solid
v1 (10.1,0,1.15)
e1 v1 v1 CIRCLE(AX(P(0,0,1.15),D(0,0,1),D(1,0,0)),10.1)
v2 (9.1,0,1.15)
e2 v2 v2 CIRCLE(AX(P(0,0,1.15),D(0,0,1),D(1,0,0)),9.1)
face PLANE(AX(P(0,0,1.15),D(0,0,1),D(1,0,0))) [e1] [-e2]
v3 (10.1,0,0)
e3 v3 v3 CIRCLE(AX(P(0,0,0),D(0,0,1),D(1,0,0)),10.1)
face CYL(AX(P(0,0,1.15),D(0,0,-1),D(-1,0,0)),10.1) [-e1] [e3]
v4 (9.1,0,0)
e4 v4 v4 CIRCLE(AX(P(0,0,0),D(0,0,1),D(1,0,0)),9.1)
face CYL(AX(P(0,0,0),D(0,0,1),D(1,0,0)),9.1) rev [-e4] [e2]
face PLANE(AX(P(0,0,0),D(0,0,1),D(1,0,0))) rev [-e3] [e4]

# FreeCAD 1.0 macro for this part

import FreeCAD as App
import Part
import Sketcher
from FreeCAD import Vector
Q = App.Units.Quantity

doc = App.newDocument("Part")
body = doc.addObject("PartDesign::Body", "Body")

sketch1 = doc.addObject("Sketcher::SketchObject", "Sketch")
body.addObject(sketch1)
sketch1.AttachmentSupport = (doc.XY_Plane, [""])
sketch1.MapMode = "FlatFace"
sketch1.addGeometry(Part.Circle(Vector(0, 0, 0), Vector(0, 0, 1), 10.1), False)
sketch1.addConstraint([
    Sketcher.Constraint("Coincident", 0, 3, -1, 1),
    Sketcher.Constraint("Diameter", 0, Q("20.2 mm")),
])
pad1 = doc.addObject("PartDesign::Pad", "Pad")
body.addObject(pad1)
pad1.Profile = sketch1
pad1.Length = 1.15

sketch2 = doc.addObject("Sketcher::SketchObject", "Sketch001")
body.addObject(sketch2)
sketch2.AttachmentSupport = (doc.XY_Plane, [""])
sketch2.MapMode = "FlatFace"
sketch2.AttachmentOffset = App.Placement(Vector(0, 0, 1.15), App.Rotation())
sketch2.addGeometry(Part.Circle(Vector(0, 0, 0), Vector(0, 0, 1), 9.1), False)
sketch2.addConstraint([
    Sketcher.Constraint("Coincident", 0, 3, -1, 1),
    Sketcher.Constraint("Diameter", 0, Q("18.2 mm")),
])
pocket1 = doc.addObject("PartDesign::Pocket", "Pocket")
body.addObject(pocket1)
pocket1.Profile = sketch2
pocket1.Length = 1.15

doc.recompute()
